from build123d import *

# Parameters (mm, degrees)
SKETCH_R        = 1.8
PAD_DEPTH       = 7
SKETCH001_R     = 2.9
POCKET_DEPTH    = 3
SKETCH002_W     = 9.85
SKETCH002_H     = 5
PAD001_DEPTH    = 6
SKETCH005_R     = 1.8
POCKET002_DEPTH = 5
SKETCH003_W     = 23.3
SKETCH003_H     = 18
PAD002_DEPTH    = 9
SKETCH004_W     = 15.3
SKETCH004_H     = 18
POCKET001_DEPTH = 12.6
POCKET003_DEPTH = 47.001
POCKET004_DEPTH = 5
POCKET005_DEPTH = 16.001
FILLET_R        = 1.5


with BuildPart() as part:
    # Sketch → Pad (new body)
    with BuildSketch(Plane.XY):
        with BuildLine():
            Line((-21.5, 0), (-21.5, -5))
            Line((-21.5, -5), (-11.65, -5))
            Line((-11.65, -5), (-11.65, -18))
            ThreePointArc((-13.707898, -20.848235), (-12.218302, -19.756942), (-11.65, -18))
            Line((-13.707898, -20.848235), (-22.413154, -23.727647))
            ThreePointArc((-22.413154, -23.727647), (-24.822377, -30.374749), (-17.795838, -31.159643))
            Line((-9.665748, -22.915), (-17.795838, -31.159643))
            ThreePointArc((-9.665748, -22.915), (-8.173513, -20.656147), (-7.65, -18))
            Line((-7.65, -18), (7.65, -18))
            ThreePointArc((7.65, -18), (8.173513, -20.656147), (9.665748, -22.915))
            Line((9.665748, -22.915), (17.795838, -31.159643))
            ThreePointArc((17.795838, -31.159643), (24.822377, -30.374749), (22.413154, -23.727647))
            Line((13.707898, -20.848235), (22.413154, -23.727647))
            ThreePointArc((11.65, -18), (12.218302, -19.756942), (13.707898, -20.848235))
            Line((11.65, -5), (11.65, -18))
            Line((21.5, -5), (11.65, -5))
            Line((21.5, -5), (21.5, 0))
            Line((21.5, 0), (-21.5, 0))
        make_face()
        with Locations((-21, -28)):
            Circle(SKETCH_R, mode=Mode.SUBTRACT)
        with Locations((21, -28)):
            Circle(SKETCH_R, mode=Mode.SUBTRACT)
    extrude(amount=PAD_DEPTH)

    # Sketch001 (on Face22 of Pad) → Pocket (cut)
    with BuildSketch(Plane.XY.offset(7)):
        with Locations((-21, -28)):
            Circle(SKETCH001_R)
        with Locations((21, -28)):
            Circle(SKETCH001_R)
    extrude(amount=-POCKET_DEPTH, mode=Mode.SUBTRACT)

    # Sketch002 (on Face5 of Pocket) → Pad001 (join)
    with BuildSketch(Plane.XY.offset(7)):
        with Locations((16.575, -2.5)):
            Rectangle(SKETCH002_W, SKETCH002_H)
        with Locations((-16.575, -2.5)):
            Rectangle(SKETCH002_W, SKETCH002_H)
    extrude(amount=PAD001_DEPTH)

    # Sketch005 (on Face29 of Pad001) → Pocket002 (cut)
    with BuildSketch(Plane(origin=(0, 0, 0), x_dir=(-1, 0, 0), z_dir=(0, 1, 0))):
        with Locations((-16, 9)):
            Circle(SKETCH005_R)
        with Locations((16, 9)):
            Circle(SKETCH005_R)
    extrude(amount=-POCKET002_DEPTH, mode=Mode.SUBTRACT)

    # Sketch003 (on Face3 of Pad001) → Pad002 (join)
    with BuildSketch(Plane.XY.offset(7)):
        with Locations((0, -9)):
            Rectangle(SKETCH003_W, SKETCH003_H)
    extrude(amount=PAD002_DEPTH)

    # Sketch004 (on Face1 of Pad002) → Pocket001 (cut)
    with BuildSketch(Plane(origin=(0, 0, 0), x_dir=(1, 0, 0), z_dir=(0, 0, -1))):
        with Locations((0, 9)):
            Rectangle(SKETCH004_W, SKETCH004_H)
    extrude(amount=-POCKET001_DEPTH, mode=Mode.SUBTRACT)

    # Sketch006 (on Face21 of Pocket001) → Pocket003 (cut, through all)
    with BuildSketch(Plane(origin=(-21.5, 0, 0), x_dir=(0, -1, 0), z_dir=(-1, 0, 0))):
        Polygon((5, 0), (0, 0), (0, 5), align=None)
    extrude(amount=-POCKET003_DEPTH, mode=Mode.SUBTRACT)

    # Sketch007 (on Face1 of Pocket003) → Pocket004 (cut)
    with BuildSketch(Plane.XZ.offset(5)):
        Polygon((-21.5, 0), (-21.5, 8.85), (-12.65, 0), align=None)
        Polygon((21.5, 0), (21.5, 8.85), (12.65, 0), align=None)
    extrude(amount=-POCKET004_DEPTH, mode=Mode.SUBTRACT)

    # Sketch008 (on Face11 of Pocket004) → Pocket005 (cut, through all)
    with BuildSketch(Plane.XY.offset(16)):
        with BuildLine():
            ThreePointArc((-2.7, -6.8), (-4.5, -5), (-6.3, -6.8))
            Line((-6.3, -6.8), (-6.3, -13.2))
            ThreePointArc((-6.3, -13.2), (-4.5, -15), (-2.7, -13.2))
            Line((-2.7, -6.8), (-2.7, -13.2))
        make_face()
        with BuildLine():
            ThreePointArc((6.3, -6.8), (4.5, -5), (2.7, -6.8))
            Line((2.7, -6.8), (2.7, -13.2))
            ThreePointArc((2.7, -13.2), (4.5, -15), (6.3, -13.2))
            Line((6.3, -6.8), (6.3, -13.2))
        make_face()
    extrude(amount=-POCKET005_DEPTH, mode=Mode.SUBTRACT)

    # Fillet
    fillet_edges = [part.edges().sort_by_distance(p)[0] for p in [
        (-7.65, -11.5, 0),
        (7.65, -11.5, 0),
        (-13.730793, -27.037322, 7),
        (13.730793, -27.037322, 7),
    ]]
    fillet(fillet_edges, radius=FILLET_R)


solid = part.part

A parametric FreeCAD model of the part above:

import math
import FreeCAD as App
import Part
import Sketcher

V = App.Vector


def edges_at(feature, points):
    """Names of the edges that pass closest to the given points."""
    edges = feature.Shape.Edges
    near = lambda p: min(range(len(edges)), key=lambda i: edges[i].distToShape(Part.Vertex(*p))[0])
    return sorted({f"Edge{near(p) + 1}" for p in points})

doc = App.newDocument("Part")
body = doc.addObject("PartDesign::Body", "Body")

sketch1 = doc.addObject("Sketcher::SketchObject", "Sketch")
body.addObject(sketch1)
sketch1.AttachmentSupport = (doc.XY_Plane, [""])
sketch1.MapMode = "FlatFace"
sketch1.addGeometry([
    Part.LineSegment(V(-21.5, 0, 0), V(-21.5, -5, 0)),
    Part.LineSegment(V(-21.5, -5, 0), V(-11.7, -5, 0)),
    Part.LineSegment(V(-11.7, -5, 0), V(-11.7, -18, 0)),
    Part.ArcOfCircle(Part.Circle(V(-14.6, -18, 0), V(0, 0, 1), 3), math.radians(-72), math.radians(0)),
    Part.LineSegment(V(-13.7, -20.8, 0), V(-22.4, -23.7, 0)),
    Part.ArcOfCircle(Part.Circle(V(-21, -28, 0), V(0, 0, 1), 4.5), math.radians(108), math.radians(315)),
    Part.LineSegment(V(-17.8, -31.2, 0), V(-9.7, -22.9, 0)),
    Part.ArcOfCircle(Part.Circle(V(-14.6, -18, 0), V(0, 0, 1), 7), math.radians(-45), math.radians(0)),
    Part.LineSegment(V(-7.7, -18, 0), V(7.7, -18, 0)),
    Part.ArcOfCircle(Part.Circle(V(14.6, -18, 0), V(0, 0, 1), 7), math.radians(180), math.radians(225)),
    Part.LineSegment(V(9.7, -22.9, 0), V(17.8, -31.2, 0)),
    Part.ArcOfCircle(Part.Circle(V(21, -28, 0), V(0, 0, 1), 4.5), math.radians(-135), math.radians(72)),
    Part.LineSegment(V(22.4, -23.7, 0), V(13.7, -20.8, 0)),
    Part.ArcOfCircle(Part.Circle(V(14.6, -18, 0), V(0, 0, 1), 3), math.radians(180), math.radians(252)),
    Part.LineSegment(V(11.7, -18, 0), V(11.7, -5, 0)),
    Part.LineSegment(V(11.7, -5, 0), V(21.5, -5, 0)),
    Part.LineSegment(V(21.5, -5, 0), V(21.5, 0, 0)),
    Part.LineSegment(V(21.5, 0, 0), V(-21.5, 0, 0)),
    Part.Circle(V(-21, -28, 0), V(0, 0, 1), 1.8),
    Part.Circle(V(21, -28, 0), V(0, 0, 1), 1.8),
], False)
sketch1.addConstraint([
    Sketcher.Constraint("Coincident", 0, 2, 1, 1),
    Sketcher.Constraint("Coincident", 1, 2, 2, 1),
    Sketcher.Constraint("Tangent", 2, 2, 3, 2),
    Sketcher.Constraint("Tangent", 3, 1, 4, 1),
    Sketcher.Constraint("Tangent", 4, 2, 5, 1),
    Sketcher.Constraint("Tangent", 5, 2, 6, 1),
    Sketcher.Constraint("Tangent", 6, 2, 7, 1),
    Sketcher.Constraint("Coincident", 7, 2, 8, 1),
    Sketcher.Constraint("Coincident", 8, 2, 9, 1),
    Sketcher.Constraint("Tangent", 9, 2, 10, 1),
    Sketcher.Constraint("Tangent", 10, 2, 11, 1),
    Sketcher.Constraint("Tangent", 11, 2, 12, 1),
    Sketcher.Constraint("Tangent", 12, 2, 13, 2),
    Sketcher.Constraint("Tangent", 13, 1, 14, 1),
    Sketcher.Constraint("Coincident", 14, 2, 15, 1),
    Sketcher.Constraint("Coincident", 15, 2, 16, 1),
    Sketcher.Constraint("Coincident", 16, 2, 17, 1),
    Sketcher.Constraint("Coincident", 17, 2, 0, 1),
    Sketcher.Constraint("Vertical", 0),
    Sketcher.Constraint("Horizontal", 1),
    Sketcher.Constraint("Vertical", 2),
    Sketcher.Constraint("Horizontal", 8),
    Sketcher.Constraint("Vertical", 14),
    Sketcher.Constraint("Horizontal", 15),
    Sketcher.Constraint("Vertical", 16),
    Sketcher.Constraint("Horizontal", 17),
    Sketcher.Constraint("Coincident", 7, 3, 3, 3),
    Sketcher.Constraint("Coincident", 13, 3, 9, 3),
    Sketcher.Constraint("Coincident", 18, 3, 5, 3),
    Sketcher.Constraint("Coincident", 19, 3, 11, 3),
    Sketcher.Constraint("Equal", 7, 9),
    Sketcher.Constraint("Equal", 5, 11),
    Sketcher.Constraint("Equal", 3, 13),
    Sketcher.Constraint("Equal", 18, 19),
    Sketcher.Constraint("Symmetric", 16, 2, 17, 2, -1, 1),
    Sketcher.Constraint("Symmetric", 3, 3, 9, 3, -2),
    Sketcher.Constraint("Symmetric", 5, 3, 11, 3, -2),
    Sketcher.Constraint("Horizontal", 2, 2, 7, 2),
    Sketcher.Constraint("Horizontal", 1, 2, 14, 2),
    Sketcher.Constraint("Radius", 3, 2.999999),
    Sketcher.Constraint("Diameter", 18, 3.6),
    Sketcher.Constraint("Radius", 5, 4.5),
    Sketcher.Constraint("DistanceX", 17, 2, 17, 1, 43.0),
    Sketcher.Constraint("DistanceY", 0, 2, 0, 1, 5.0),
    Sketcher.Constraint("DistanceY", 2, 2, 2, 1, 13.0),
    Sketcher.Constraint("DistanceX", 8, 1, 8, 2, 15.3),
    Sketcher.Constraint("DistanceX", 5, 3, -1, 1, 21.0),
    Sketcher.Constraint("DistanceY", 5, 3, -1, 1, 28.0),
    Sketcher.Constraint("DistanceX", 2, 2, 7, 2, 4.0),
])
pad1 = doc.addObject("PartDesign::Pad", "Pad")
body.addObject(pad1)
pad1.Profile = sketch1
pad1.Length = 7

sketch2 = doc.addObject("Sketcher::SketchObject", "Sketch001")
body.addObject(sketch2)
sketch2.AttachmentSupport = (doc.XY_Plane, [""])
sketch2.MapMode = "FlatFace"
sketch2.AttachmentOffset = App.Placement(V(0, 0, 7), App.Rotation())
sketch2.addGeometry([
    Part.Circle(V(-21, -28, 0), V(0, 0, 1), 2.9),
    Part.Circle(V(21, -28, 0), V(0, 0, 1), 2.9),
], False)
sketch2.addConstraint([
    Sketcher.Constraint("Equal", 0, 1),
    Sketcher.Constraint("Symmetric", 0, 3, 1, 3, -2),
    Sketcher.Constraint("Diameter", 0, 5.8),
    Sketcher.Constraint("DistanceX", 0, 3, -1, 1, 21.0),
    Sketcher.Constraint("DistanceY", 0, 3, -1, 1, 28.0),
])
pocket1 = doc.addObject("PartDesign::Pocket", "Pocket")
body.addObject(pocket1)
pocket1.Profile = sketch2
pocket1.Length = 3

sketch3 = doc.addObject("Sketcher::SketchObject", "Sketch002")
body.addObject(sketch3)
sketch3.AttachmentSupport = (doc.XY_Plane, [""])
sketch3.MapMode = "FlatFace"
sketch3.AttachmentOffset = App.Placement(V(0, 0, 7), App.Rotation())
sketch3.addGeometry([
    Part.LineSegment(V(12, 0, 0), V(12, -5, 0)),
    Part.LineSegment(V(12, -5, 0), V(22, -5, 0)),
    Part.LineSegment(V(22, -5, 0), V(22, 0, 0)),
    Part.LineSegment(V(22, 0, 0), V(12, 0, 0)),
    Part.LineSegment(V(-22, 0, 0), V(-22, -5, 0)),
    Part.LineSegment(V(-22, -5, 0), V(-12, -5, 0)),
    Part.LineSegment(V(-12, -5, 0), V(-12, 0, 0)),
    Part.LineSegment(V(-12, 0, 0), V(-22, 0, 0)),
], False)
sketch3.addConstraint([
    Sketcher.Constraint("Coincident", 0, 2, 1, 1),
    Sketcher.Constraint("Coincident", 1, 2, 2, 1),
    Sketcher.Constraint("Coincident", 2, 2, 3, 1),
    Sketcher.Constraint("Coincident", 3, 2, 0, 1),
    Sketcher.Constraint("Coincident", 4, 2, 5, 1),
    Sketcher.Constraint("Coincident", 5, 2, 6, 1),
    Sketcher.Constraint("Coincident", 6, 2, 7, 1),
    Sketcher.Constraint("Coincident", 7, 2, 4, 1),
    Sketcher.Constraint("Vertical", 0),
    Sketcher.Constraint("Horizontal", 1),
    Sketcher.Constraint("Vertical", 2),
    Sketcher.Constraint("Horizontal", 3),
    Sketcher.Constraint("Vertical", 4),
    Sketcher.Constraint("Horizontal", 5),
    Sketcher.Constraint("Vertical", 6),
    Sketcher.Constraint("Horizontal", 7),
    Sketcher.Constraint("Symmetric", 3, 2, 6, 2, -1, 1),
    Sketcher.Constraint("Symmetric", 1, 2, 4, 2, -2),
    Sketcher.Constraint("PointOnObject", 2, 2, -1),
    Sketcher.Constraint("DistanceY", 0, 2, 0, 1, 5.0),
    Sketcher.Constraint("DistanceX", 4, 2, 1, 2, 43.0),
    Sketcher.Constraint("DistanceX", 1, 1, 1, 2, 9.85),
])
pad2 = doc.addObject("PartDesign::Pad", "Pad001")
body.addObject(pad2)
pad2.Profile = sketch3
pad2.Length = 6

sketch4 = doc.addObject("Sketcher::SketchObject", "Sketch003")
body.addObject(sketch4)
sketch4.AttachmentSupport = (doc.XZ_Plane, [""])
sketch4.MapMode = "FlatFace"
sketch4.addGeometry([
    Part.Circle(V(16, 9, 0), V(0, 0, 1), 1.8),
    Part.Circle(V(-16, 9, 0), V(0, 0, 1), 1.8),
], False)
sketch4.addConstraint([
    Sketcher.Constraint("Equal", 0, 1),
    Sketcher.Constraint("Symmetric", 0, 3, 1, 3, -2),
    Sketcher.Constraint("Diameter", 0, 3.6),
    Sketcher.Constraint("DistanceX", -1, 1, 0, 3, 16.0),
    Sketcher.Constraint("DistanceY", -1, 1, 0, 3, 9.0),
])
pocket2 = doc.addObject("PartDesign::Pocket", "Pocket001")
body.addObject(pocket2)
pocket2.Profile = sketch4
pocket2.Length = 5
pocket2.Reversed = True

sketch5 = doc.addObject("Sketcher::SketchObject", "Sketch004")
body.addObject(sketch5)
sketch5.AttachmentSupport = (doc.XY_Plane, [""])
sketch5.MapMode = "FlatFace"
sketch5.AttachmentOffset = App.Placement(V(0, 0, 7), App.Rotation())
sketch5.addGeometry([
    Part.LineSegment(V(-12, 0, 0), V(-12, -18, 0)),
    Part.LineSegment(V(-12, -18, 0), V(12, -18, 0)),
    Part.LineSegment(V(12, -18, 0), V(12, 0, 0)),
    Part.LineSegment(V(12, 0, 0), V(-12, 0, 0)),
], False)
sketch5.addConstraint([
    Sketcher.Constraint("Coincident", 0, 2, 1, 1),
    Sketcher.Constraint("Coincident", 1, 2, 2, 1),
    Sketcher.Constraint("Coincident", 2, 2, 3, 1),
    Sketcher.Constraint("Coincident", 3, 2, 0, 1),
    Sketcher.Constraint("Vertical", 0),
    Sketcher.Constraint("Horizontal", 1),
    Sketcher.Constraint("Vertical", 2),
    Sketcher.Constraint("Horizontal", 3),
    Sketcher.Constraint("Symmetric", 2, 2, 3, 2, -1, 1),
    Sketcher.Constraint("DistanceY", 0, 2, 0, 1, 18.0),
    Sketcher.Constraint("DistanceX", 1, 1, 1, 2, 23.3),
])
pad3 = doc.addObject("PartDesign::Pad", "Pad002")
body.addObject(pad3)
pad3.Profile = sketch5
pad3.Length = 9

sketch6 = doc.addObject("Sketcher::SketchObject", "Sketch005")
body.addObject(sketch6)
sketch6.AttachmentSupport = (doc.XY_Plane, [""])
sketch6.MapMode = "FlatFace"
sketch6.addGeometry([
    Part.LineSegment(V(-8, -18, 0), V(-8, 0, 0)),
    Part.LineSegment(V(-8, 0, 0), V(8, 0, 0)),
    Part.LineSegment(V(8, 0, 0), V(8, -18, 0)),
    Part.LineSegment(V(8, -18, 0), V(-8, -18, 0)),
], False)
sketch6.addConstraint([
    Sketcher.Constraint("Coincident", 0, 2, 1, 1),
    Sketcher.Constraint("Coincident", 1, 2, 2, 1),
    Sketcher.Constraint("Coincident", 2, 2, 3, 1),
    Sketcher.Constraint("Coincident", 3, 2, 0, 1),
    Sketcher.Constraint("Vertical", 0),
    Sketcher.Constraint("Horizontal", 1),
    Sketcher.Constraint("Vertical", 2),
    Sketcher.Constraint("Horizontal", 3),
    Sketcher.Constraint("Symmetric", 0, 2, 1, 2, -1, 1),
    Sketcher.Constraint("DistanceY", 0, 1, 0, 2, 18.0),
    Sketcher.Constraint("DistanceX", 1, 1, 1, 2, 15.3),
])
pocket3 = doc.addObject("PartDesign::Pocket", "Pocket002")
body.addObject(pocket3)
pocket3.Profile = sketch6
pocket3.Length = 12.6
pocket3.Reversed = True

sketch7 = doc.addObject("Sketcher::SketchObject", "Sketch006")
body.addObject(sketch7)
sketch7.AttachmentSupport = (doc.YZ_Plane, [""])
sketch7.MapMode = "FlatFace"
sketch7.AttachmentOffset = App.Placement(V(0, 0, -21.5), App.Rotation())
sketch7.addGeometry([
    Part.LineSegment(V(0, 0, 0), V(-5, 0, 0)),
    Part.LineSegment(V(-5, 0, 0), V(0, 5, 0)),
    Part.LineSegment(V(0, 5, 0), V(0, 0, 0)),
], False)
sketch7.addConstraint([
    Sketcher.Constraint("Coincident", 0, 2, 1, 1),
    Sketcher.Constraint("Coincident", 1, 2, 2, 1),
    Sketcher.Constraint("Coincident", 2, 2, 0, 1),
    Sketcher.Constraint("Horizontal", 0),
    Sketcher.Constraint("Vertical", 2),
    Sketcher.Constraint("Coincident", 2, 2, -1, 1),
    Sketcher.Constraint("Equal", 0, 2),
    Sketcher.Constraint("DistanceX", 0, 2, 0, 1, 5.0),
])
pocket4 = doc.addObject("PartDesign::Pocket", "Pocket003")
body.addObject(pocket4)
pocket4.Profile = sketch7
pocket4.Type = "ThroughAll"
pocket4.Reversed = True

sketch8 = doc.addObject("Sketcher::SketchObject", "Sketch007")
body.addObject(sketch8)
sketch8.AttachmentSupport = (doc.XZ_Plane, [""])
sketch8.MapMode = "FlatFace"
sketch8.AttachmentOffset = App.Placement(V(0, 0, 5), App.Rotation())
sketch8.addGeometry([
    Part.LineSegment(V(-22, 9, 0), V(-22, 0, 0)),
    Part.LineSegment(V(-22, 0, 0), V(-13, 0, 0)),
    Part.LineSegment(V(-13, 0, 0), V(-22, 9, 0)),
    Part.LineSegment(V(22, 0, 0), V(22, 9, 0)),
    Part.LineSegment(V(22, 9, 0), V(13, 0, 0)),
    Part.LineSegment(V(13, 0, 0), V(22, 0, 0)),
], False)
sketch8.addConstraint([
    Sketcher.Constraint("Coincident", 0, 2, 1, 1),
    Sketcher.Constraint("Coincident", 1, 2, 2, 1),
    Sketcher.Constraint("Coincident", 2, 2, 0, 1),
    Sketcher.Constraint("Coincident", 3, 2, 4, 1),
    Sketcher.Constraint("Coincident", 4, 2, 5, 1),
    Sketcher.Constraint("Coincident", 5, 2, 3, 1),
    Sketcher.Constraint("Vertical", 0),
    Sketcher.Constraint("Horizontal", 1),
    Sketcher.Constraint("Vertical", 3),
    Sketcher.Constraint("Horizontal", 5),
    Sketcher.Constraint("Symmetric", 1, 2, 4, 2, -1, 1),
    Sketcher.Constraint("Symmetric", 2, 2, 3, 2, -2),
    Sketcher.Constraint("PointOnObject", 0, 2, -1),
    Sketcher.Constraint("Perpendicular", 2, 4),
    Sketcher.Constraint("DistanceX", 2, 2, 3, 2, 43.0),
    Sketcher.Constraint("DistanceX", 1, 1, 1, 2, 8.85),
])
pocket5 = doc.addObject("PartDesign::Pocket", "Pocket004")
body.addObject(pocket5)
pocket5.Profile = sketch8
pocket5.Length = 5

sketch9 = doc.addObject("Sketcher::SketchObject", "Sketch008")
body.addObject(sketch9)
sketch9.AttachmentSupport = (doc.XY_Plane, [""])
sketch9.MapMode = "FlatFace"
sketch9.AttachmentOffset = App.Placement(V(0, 0, 16), App.Rotation())
sketch9.addGeometry([
    Part.ArcOfCircle(Part.Circle(V(-4.5, -6.8, 0), V(0, 0, 1), 1.8), math.radians(0), math.radians(180)),
    Part.LineSegment(V(-6.3, -6.8, 0), V(-6.3, -13.2, 0)),
    Part.ArcOfCircle(Part.Circle(V(-4.5, -13.2, 0), V(0, 0, 1), 1.8), math.radians(180), math.radians(360)),
    Part.LineSegment(V(-2.7, -13.2, 0), V(-2.7, -6.8, 0)),
    Part.ArcOfCircle(Part.Circle(V(4.5, -6.8, 0), V(0, 0, 1), 1.8), math.radians(0), math.radians(180)),
    Part.LineSegment(V(2.7, -6.8, 0), V(2.7, -13.2, 0)),
    Part.ArcOfCircle(Part.Circle(V(4.5, -13.2, 0), V(0, 0, 1), 1.8), math.radians(180), math.radians(360)),
    Part.LineSegment(V(6.3, -13.2, 0), V(6.3, -6.8, 0)),
], False)
sketch9.addConstraint([
    Sketcher.Constraint("Tangent", 0, 2, 1, 1),
    Sketcher.Constraint("Tangent", 1, 2, 2, 1),
    Sketcher.Constraint("Tangent", 2, 2, 3, 1),
    Sketcher.Constraint("Tangent", 3, 2, 0, 1),
    Sketcher.Constraint("Tangent", 4, 2, 5, 1),
    Sketcher.Constraint("Tangent", 5, 2, 6, 1),
    Sketcher.Constraint("Tangent", 6, 2, 7, 1),
    Sketcher.Constraint("Tangent", 7, 2, 4, 1),
    Sketcher.Constraint("Vertical", 1),
    Sketcher.Constraint("Vertical", 3),
    Sketcher.Constraint("Vertical", 5),
    Sketcher.Constraint("Vertical", 7),
    Sketcher.Constraint("Equal", 2, 4),
    Sketcher.Constraint("Symmetric", 0, 3, 4, 3, -2),
    Sketcher.Constraint("Horizontal", 2, 3, 6, 3),
    Sketcher.Constraint("Radius", 0, 1.8),
    Sketcher.Constraint("DistanceY", 1, 2, 1, 1, 6.4),
    Sketcher.Constraint("DistanceX", 0, 3, 4, 3, 9.0),
    Sketcher.Constraint("DistanceY", 0, 3, -1, 1, 6.8),
])
pocket6 = doc.addObject("PartDesign::Pocket", "Pocket005")
body.addObject(pocket6)
pocket6.Profile = sketch9
pocket6.Type = "ThroughAll"
doc.recompute()

fillet = doc.addObject("PartDesign::Fillet", "Fillet")
body.addObject(fillet)
fillet.Base = (pocket6, edges_at(pocket6, [
    (-7.65, -11.5, 0),
    (7.65, -11.5, 0),
    (-13.731, -27.037, 7),
    (13.731, -27.037, 7),
]))
fillet.Radius = 1.5

doc.recompute()
